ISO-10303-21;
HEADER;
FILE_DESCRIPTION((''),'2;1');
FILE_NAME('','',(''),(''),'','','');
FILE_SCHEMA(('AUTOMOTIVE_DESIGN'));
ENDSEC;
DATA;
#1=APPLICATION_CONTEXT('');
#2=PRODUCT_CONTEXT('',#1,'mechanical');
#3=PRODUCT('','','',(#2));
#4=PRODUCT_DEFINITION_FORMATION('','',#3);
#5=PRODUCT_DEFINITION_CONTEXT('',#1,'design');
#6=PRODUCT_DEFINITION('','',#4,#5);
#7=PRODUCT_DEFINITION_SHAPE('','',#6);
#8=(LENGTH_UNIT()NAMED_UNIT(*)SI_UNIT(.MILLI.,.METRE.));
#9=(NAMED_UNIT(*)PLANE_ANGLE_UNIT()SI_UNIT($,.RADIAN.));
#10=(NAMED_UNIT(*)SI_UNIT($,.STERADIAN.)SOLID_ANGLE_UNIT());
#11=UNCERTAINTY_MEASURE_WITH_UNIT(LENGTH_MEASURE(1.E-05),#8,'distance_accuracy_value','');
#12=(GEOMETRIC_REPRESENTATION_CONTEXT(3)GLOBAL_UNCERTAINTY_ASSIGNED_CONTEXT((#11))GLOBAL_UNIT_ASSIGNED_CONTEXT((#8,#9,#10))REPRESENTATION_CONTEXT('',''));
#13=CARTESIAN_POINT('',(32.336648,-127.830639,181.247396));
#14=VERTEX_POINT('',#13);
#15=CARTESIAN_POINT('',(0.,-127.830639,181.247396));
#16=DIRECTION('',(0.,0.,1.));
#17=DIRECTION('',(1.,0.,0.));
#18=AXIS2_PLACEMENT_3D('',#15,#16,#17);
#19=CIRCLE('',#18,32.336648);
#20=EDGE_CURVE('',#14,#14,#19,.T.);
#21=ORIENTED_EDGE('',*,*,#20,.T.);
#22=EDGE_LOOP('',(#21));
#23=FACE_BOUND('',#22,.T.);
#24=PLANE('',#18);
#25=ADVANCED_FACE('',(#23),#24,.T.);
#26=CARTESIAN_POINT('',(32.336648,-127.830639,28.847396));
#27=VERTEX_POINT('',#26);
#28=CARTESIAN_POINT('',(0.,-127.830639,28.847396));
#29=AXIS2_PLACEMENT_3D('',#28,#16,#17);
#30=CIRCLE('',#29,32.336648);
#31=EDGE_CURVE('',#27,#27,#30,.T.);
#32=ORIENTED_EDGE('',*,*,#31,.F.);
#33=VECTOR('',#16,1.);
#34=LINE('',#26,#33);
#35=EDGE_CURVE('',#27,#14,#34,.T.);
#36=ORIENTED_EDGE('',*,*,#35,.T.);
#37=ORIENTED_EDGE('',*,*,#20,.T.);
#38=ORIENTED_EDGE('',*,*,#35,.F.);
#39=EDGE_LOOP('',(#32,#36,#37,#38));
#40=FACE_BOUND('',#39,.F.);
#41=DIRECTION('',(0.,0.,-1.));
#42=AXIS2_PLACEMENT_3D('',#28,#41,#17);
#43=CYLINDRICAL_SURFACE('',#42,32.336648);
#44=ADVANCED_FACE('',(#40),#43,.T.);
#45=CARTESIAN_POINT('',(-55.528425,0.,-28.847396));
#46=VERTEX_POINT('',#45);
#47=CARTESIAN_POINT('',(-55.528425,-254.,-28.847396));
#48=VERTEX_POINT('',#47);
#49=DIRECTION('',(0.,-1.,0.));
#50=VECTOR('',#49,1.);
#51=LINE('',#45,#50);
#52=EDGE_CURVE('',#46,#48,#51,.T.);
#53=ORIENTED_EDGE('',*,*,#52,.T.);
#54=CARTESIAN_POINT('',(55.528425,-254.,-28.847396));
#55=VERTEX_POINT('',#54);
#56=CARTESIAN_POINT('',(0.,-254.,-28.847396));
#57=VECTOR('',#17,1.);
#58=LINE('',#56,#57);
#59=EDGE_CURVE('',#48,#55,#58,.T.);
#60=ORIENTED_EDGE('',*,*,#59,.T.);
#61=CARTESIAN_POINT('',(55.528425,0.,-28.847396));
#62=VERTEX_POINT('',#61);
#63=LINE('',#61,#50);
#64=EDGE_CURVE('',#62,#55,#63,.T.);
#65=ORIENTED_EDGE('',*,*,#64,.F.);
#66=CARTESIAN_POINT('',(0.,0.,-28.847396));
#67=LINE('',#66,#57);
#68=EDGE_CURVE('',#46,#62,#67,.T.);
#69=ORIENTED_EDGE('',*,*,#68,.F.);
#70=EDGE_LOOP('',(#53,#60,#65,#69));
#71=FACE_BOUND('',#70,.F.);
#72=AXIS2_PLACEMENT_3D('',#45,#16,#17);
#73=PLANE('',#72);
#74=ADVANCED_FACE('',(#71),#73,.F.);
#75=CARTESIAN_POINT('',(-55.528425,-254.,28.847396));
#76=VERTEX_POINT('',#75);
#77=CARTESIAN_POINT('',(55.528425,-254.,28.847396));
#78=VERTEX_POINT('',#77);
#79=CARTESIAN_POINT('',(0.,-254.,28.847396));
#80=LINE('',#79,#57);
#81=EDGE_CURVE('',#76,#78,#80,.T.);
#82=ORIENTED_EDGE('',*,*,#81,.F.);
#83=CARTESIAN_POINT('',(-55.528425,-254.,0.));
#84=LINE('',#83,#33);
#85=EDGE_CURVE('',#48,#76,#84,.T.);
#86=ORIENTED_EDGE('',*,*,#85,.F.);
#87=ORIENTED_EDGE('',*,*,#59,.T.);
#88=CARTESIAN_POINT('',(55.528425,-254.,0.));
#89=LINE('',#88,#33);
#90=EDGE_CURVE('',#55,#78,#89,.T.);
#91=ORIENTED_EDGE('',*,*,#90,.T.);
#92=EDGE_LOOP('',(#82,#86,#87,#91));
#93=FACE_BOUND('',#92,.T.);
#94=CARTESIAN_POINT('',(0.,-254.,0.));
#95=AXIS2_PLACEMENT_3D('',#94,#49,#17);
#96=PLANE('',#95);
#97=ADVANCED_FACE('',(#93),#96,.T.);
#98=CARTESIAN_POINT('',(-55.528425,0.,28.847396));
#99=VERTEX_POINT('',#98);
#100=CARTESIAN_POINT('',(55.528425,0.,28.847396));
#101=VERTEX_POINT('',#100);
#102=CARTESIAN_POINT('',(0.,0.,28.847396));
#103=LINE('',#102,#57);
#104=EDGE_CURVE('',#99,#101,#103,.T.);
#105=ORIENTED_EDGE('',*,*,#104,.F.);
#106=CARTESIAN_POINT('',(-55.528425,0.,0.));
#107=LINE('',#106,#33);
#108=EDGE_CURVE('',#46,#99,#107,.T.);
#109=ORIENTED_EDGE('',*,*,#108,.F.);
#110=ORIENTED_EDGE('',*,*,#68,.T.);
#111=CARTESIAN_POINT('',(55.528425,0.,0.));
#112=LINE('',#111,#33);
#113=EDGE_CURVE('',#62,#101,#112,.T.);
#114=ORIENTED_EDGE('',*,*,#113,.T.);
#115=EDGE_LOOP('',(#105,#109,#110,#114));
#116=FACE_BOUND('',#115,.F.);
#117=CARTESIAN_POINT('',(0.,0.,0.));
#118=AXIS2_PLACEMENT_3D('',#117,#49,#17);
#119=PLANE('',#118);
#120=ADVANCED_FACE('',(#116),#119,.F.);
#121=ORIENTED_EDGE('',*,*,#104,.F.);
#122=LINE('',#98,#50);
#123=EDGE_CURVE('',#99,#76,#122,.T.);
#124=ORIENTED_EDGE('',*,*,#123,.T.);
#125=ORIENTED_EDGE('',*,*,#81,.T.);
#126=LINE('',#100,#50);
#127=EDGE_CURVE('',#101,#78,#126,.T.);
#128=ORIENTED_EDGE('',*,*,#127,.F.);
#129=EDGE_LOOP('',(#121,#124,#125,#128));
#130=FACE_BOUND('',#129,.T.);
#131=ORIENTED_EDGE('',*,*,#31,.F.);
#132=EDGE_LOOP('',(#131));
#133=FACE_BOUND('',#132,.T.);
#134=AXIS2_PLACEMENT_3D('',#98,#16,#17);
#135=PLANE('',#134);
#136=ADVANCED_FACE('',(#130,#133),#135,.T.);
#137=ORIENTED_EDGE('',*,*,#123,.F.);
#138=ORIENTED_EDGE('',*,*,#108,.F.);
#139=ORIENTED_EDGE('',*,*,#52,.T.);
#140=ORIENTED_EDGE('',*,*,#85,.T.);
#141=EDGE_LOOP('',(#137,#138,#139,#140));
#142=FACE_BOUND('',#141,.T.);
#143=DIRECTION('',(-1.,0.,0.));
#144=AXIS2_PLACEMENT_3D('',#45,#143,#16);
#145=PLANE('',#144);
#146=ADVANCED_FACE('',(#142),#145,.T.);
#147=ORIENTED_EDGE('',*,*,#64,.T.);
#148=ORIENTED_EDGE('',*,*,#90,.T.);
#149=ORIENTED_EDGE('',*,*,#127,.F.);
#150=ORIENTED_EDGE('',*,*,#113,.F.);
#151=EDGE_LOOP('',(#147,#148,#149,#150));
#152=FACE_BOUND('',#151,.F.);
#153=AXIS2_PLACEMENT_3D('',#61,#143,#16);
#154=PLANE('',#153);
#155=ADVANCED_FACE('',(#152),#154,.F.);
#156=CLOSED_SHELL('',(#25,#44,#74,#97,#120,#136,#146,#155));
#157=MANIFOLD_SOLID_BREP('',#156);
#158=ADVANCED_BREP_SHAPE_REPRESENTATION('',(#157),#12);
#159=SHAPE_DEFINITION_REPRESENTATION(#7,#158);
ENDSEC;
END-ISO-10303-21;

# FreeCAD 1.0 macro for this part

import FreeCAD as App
import Part
import Sketcher
Q = App.Units.Quantity


def add_polygon(sketch, points):
    """Adds a closed chain of lines whose ends are joined by coincident constraints."""
    first, n = sketch.GeometryCount, len(points)
    for a, b in zip(points, points[1:] + points[:1]):
        sketch.addGeometry(Part.LineSegment(App.Vector(*a, 0), App.Vector(*b, 0)), False)
    for i in range(n):
        sketch.addConstraint(Sketcher.Constraint("Coincident", first + i, 2, first + (i + 1) % n, 1))

doc = App.newDocument("Part")
body = doc.addObject("PartDesign::Body", "Body")

# Sketch on XZ plane
sketch1 = doc.addObject("Sketcher::SketchObject", "Sketch")
body.addObject(sketch1)
sketch1.AttachmentSupport = (doc.XZ_Plane, [""])
sketch1.MapMode = "FlatFace"
add_polygon(sketch1, [(-56, 29), (-56, -29), (56, -29), (56, 29)])  # lines 0-3
sketch1.addConstraint([
    Sketcher.Constraint("Vertical", 0),
    Sketcher.Constraint("Horizontal", 1),
    Sketcher.Constraint("Vertical", 2),
    Sketcher.Constraint("Horizontal", 3),
    Sketcher.Constraint("Symmetric", 0, 2, 2, 2, -1, 1),
    Sketcher.Constraint("DistanceX", 1, 1, 1, 2, Q("111.05685 mm")),
    Sketcher.Constraint("DistanceY", 0, 2, 0, 1, Q("57.694792 mm")),
])
pad1 = doc.addObject("PartDesign::Pad", "Pad")
body.addObject(pad1)
pad1.Profile = sketch1
pad1.Length = Q("10 in")

# Sketch on XY plane
sketch2 = doc.addObject("Sketcher::SketchObject", "Sketch001")
body.addObject(sketch2)
sketch2.AttachmentSupport = (doc.XY_Plane, [""])
sketch2.MapMode = "FlatFace"
sketch2.AttachmentOffset = App.Placement(App.Vector(0, 0, 28.847396), App.Rotation())
sketch2.addGeometry(Part.Circle(App.Vector(0, -128, 0), App.Vector(0, 0, 1), 32), False)
sketch2.addConstraint([
    Sketcher.Constraint("PointOnObject", 0, 3, -2),
    Sketcher.Constraint("Diameter", 0, Q("64.673296 mm")),
    Sketcher.Constraint("DistanceY", 0, 3, -1, 1, Q("127.830639 mm")),
])
pad2 = doc.addObject("PartDesign::Pad", "Pad001")
body.addObject(pad2)
pad2.Profile = sketch2
pad2.Length = Q("6 in")

doc.recompute()
